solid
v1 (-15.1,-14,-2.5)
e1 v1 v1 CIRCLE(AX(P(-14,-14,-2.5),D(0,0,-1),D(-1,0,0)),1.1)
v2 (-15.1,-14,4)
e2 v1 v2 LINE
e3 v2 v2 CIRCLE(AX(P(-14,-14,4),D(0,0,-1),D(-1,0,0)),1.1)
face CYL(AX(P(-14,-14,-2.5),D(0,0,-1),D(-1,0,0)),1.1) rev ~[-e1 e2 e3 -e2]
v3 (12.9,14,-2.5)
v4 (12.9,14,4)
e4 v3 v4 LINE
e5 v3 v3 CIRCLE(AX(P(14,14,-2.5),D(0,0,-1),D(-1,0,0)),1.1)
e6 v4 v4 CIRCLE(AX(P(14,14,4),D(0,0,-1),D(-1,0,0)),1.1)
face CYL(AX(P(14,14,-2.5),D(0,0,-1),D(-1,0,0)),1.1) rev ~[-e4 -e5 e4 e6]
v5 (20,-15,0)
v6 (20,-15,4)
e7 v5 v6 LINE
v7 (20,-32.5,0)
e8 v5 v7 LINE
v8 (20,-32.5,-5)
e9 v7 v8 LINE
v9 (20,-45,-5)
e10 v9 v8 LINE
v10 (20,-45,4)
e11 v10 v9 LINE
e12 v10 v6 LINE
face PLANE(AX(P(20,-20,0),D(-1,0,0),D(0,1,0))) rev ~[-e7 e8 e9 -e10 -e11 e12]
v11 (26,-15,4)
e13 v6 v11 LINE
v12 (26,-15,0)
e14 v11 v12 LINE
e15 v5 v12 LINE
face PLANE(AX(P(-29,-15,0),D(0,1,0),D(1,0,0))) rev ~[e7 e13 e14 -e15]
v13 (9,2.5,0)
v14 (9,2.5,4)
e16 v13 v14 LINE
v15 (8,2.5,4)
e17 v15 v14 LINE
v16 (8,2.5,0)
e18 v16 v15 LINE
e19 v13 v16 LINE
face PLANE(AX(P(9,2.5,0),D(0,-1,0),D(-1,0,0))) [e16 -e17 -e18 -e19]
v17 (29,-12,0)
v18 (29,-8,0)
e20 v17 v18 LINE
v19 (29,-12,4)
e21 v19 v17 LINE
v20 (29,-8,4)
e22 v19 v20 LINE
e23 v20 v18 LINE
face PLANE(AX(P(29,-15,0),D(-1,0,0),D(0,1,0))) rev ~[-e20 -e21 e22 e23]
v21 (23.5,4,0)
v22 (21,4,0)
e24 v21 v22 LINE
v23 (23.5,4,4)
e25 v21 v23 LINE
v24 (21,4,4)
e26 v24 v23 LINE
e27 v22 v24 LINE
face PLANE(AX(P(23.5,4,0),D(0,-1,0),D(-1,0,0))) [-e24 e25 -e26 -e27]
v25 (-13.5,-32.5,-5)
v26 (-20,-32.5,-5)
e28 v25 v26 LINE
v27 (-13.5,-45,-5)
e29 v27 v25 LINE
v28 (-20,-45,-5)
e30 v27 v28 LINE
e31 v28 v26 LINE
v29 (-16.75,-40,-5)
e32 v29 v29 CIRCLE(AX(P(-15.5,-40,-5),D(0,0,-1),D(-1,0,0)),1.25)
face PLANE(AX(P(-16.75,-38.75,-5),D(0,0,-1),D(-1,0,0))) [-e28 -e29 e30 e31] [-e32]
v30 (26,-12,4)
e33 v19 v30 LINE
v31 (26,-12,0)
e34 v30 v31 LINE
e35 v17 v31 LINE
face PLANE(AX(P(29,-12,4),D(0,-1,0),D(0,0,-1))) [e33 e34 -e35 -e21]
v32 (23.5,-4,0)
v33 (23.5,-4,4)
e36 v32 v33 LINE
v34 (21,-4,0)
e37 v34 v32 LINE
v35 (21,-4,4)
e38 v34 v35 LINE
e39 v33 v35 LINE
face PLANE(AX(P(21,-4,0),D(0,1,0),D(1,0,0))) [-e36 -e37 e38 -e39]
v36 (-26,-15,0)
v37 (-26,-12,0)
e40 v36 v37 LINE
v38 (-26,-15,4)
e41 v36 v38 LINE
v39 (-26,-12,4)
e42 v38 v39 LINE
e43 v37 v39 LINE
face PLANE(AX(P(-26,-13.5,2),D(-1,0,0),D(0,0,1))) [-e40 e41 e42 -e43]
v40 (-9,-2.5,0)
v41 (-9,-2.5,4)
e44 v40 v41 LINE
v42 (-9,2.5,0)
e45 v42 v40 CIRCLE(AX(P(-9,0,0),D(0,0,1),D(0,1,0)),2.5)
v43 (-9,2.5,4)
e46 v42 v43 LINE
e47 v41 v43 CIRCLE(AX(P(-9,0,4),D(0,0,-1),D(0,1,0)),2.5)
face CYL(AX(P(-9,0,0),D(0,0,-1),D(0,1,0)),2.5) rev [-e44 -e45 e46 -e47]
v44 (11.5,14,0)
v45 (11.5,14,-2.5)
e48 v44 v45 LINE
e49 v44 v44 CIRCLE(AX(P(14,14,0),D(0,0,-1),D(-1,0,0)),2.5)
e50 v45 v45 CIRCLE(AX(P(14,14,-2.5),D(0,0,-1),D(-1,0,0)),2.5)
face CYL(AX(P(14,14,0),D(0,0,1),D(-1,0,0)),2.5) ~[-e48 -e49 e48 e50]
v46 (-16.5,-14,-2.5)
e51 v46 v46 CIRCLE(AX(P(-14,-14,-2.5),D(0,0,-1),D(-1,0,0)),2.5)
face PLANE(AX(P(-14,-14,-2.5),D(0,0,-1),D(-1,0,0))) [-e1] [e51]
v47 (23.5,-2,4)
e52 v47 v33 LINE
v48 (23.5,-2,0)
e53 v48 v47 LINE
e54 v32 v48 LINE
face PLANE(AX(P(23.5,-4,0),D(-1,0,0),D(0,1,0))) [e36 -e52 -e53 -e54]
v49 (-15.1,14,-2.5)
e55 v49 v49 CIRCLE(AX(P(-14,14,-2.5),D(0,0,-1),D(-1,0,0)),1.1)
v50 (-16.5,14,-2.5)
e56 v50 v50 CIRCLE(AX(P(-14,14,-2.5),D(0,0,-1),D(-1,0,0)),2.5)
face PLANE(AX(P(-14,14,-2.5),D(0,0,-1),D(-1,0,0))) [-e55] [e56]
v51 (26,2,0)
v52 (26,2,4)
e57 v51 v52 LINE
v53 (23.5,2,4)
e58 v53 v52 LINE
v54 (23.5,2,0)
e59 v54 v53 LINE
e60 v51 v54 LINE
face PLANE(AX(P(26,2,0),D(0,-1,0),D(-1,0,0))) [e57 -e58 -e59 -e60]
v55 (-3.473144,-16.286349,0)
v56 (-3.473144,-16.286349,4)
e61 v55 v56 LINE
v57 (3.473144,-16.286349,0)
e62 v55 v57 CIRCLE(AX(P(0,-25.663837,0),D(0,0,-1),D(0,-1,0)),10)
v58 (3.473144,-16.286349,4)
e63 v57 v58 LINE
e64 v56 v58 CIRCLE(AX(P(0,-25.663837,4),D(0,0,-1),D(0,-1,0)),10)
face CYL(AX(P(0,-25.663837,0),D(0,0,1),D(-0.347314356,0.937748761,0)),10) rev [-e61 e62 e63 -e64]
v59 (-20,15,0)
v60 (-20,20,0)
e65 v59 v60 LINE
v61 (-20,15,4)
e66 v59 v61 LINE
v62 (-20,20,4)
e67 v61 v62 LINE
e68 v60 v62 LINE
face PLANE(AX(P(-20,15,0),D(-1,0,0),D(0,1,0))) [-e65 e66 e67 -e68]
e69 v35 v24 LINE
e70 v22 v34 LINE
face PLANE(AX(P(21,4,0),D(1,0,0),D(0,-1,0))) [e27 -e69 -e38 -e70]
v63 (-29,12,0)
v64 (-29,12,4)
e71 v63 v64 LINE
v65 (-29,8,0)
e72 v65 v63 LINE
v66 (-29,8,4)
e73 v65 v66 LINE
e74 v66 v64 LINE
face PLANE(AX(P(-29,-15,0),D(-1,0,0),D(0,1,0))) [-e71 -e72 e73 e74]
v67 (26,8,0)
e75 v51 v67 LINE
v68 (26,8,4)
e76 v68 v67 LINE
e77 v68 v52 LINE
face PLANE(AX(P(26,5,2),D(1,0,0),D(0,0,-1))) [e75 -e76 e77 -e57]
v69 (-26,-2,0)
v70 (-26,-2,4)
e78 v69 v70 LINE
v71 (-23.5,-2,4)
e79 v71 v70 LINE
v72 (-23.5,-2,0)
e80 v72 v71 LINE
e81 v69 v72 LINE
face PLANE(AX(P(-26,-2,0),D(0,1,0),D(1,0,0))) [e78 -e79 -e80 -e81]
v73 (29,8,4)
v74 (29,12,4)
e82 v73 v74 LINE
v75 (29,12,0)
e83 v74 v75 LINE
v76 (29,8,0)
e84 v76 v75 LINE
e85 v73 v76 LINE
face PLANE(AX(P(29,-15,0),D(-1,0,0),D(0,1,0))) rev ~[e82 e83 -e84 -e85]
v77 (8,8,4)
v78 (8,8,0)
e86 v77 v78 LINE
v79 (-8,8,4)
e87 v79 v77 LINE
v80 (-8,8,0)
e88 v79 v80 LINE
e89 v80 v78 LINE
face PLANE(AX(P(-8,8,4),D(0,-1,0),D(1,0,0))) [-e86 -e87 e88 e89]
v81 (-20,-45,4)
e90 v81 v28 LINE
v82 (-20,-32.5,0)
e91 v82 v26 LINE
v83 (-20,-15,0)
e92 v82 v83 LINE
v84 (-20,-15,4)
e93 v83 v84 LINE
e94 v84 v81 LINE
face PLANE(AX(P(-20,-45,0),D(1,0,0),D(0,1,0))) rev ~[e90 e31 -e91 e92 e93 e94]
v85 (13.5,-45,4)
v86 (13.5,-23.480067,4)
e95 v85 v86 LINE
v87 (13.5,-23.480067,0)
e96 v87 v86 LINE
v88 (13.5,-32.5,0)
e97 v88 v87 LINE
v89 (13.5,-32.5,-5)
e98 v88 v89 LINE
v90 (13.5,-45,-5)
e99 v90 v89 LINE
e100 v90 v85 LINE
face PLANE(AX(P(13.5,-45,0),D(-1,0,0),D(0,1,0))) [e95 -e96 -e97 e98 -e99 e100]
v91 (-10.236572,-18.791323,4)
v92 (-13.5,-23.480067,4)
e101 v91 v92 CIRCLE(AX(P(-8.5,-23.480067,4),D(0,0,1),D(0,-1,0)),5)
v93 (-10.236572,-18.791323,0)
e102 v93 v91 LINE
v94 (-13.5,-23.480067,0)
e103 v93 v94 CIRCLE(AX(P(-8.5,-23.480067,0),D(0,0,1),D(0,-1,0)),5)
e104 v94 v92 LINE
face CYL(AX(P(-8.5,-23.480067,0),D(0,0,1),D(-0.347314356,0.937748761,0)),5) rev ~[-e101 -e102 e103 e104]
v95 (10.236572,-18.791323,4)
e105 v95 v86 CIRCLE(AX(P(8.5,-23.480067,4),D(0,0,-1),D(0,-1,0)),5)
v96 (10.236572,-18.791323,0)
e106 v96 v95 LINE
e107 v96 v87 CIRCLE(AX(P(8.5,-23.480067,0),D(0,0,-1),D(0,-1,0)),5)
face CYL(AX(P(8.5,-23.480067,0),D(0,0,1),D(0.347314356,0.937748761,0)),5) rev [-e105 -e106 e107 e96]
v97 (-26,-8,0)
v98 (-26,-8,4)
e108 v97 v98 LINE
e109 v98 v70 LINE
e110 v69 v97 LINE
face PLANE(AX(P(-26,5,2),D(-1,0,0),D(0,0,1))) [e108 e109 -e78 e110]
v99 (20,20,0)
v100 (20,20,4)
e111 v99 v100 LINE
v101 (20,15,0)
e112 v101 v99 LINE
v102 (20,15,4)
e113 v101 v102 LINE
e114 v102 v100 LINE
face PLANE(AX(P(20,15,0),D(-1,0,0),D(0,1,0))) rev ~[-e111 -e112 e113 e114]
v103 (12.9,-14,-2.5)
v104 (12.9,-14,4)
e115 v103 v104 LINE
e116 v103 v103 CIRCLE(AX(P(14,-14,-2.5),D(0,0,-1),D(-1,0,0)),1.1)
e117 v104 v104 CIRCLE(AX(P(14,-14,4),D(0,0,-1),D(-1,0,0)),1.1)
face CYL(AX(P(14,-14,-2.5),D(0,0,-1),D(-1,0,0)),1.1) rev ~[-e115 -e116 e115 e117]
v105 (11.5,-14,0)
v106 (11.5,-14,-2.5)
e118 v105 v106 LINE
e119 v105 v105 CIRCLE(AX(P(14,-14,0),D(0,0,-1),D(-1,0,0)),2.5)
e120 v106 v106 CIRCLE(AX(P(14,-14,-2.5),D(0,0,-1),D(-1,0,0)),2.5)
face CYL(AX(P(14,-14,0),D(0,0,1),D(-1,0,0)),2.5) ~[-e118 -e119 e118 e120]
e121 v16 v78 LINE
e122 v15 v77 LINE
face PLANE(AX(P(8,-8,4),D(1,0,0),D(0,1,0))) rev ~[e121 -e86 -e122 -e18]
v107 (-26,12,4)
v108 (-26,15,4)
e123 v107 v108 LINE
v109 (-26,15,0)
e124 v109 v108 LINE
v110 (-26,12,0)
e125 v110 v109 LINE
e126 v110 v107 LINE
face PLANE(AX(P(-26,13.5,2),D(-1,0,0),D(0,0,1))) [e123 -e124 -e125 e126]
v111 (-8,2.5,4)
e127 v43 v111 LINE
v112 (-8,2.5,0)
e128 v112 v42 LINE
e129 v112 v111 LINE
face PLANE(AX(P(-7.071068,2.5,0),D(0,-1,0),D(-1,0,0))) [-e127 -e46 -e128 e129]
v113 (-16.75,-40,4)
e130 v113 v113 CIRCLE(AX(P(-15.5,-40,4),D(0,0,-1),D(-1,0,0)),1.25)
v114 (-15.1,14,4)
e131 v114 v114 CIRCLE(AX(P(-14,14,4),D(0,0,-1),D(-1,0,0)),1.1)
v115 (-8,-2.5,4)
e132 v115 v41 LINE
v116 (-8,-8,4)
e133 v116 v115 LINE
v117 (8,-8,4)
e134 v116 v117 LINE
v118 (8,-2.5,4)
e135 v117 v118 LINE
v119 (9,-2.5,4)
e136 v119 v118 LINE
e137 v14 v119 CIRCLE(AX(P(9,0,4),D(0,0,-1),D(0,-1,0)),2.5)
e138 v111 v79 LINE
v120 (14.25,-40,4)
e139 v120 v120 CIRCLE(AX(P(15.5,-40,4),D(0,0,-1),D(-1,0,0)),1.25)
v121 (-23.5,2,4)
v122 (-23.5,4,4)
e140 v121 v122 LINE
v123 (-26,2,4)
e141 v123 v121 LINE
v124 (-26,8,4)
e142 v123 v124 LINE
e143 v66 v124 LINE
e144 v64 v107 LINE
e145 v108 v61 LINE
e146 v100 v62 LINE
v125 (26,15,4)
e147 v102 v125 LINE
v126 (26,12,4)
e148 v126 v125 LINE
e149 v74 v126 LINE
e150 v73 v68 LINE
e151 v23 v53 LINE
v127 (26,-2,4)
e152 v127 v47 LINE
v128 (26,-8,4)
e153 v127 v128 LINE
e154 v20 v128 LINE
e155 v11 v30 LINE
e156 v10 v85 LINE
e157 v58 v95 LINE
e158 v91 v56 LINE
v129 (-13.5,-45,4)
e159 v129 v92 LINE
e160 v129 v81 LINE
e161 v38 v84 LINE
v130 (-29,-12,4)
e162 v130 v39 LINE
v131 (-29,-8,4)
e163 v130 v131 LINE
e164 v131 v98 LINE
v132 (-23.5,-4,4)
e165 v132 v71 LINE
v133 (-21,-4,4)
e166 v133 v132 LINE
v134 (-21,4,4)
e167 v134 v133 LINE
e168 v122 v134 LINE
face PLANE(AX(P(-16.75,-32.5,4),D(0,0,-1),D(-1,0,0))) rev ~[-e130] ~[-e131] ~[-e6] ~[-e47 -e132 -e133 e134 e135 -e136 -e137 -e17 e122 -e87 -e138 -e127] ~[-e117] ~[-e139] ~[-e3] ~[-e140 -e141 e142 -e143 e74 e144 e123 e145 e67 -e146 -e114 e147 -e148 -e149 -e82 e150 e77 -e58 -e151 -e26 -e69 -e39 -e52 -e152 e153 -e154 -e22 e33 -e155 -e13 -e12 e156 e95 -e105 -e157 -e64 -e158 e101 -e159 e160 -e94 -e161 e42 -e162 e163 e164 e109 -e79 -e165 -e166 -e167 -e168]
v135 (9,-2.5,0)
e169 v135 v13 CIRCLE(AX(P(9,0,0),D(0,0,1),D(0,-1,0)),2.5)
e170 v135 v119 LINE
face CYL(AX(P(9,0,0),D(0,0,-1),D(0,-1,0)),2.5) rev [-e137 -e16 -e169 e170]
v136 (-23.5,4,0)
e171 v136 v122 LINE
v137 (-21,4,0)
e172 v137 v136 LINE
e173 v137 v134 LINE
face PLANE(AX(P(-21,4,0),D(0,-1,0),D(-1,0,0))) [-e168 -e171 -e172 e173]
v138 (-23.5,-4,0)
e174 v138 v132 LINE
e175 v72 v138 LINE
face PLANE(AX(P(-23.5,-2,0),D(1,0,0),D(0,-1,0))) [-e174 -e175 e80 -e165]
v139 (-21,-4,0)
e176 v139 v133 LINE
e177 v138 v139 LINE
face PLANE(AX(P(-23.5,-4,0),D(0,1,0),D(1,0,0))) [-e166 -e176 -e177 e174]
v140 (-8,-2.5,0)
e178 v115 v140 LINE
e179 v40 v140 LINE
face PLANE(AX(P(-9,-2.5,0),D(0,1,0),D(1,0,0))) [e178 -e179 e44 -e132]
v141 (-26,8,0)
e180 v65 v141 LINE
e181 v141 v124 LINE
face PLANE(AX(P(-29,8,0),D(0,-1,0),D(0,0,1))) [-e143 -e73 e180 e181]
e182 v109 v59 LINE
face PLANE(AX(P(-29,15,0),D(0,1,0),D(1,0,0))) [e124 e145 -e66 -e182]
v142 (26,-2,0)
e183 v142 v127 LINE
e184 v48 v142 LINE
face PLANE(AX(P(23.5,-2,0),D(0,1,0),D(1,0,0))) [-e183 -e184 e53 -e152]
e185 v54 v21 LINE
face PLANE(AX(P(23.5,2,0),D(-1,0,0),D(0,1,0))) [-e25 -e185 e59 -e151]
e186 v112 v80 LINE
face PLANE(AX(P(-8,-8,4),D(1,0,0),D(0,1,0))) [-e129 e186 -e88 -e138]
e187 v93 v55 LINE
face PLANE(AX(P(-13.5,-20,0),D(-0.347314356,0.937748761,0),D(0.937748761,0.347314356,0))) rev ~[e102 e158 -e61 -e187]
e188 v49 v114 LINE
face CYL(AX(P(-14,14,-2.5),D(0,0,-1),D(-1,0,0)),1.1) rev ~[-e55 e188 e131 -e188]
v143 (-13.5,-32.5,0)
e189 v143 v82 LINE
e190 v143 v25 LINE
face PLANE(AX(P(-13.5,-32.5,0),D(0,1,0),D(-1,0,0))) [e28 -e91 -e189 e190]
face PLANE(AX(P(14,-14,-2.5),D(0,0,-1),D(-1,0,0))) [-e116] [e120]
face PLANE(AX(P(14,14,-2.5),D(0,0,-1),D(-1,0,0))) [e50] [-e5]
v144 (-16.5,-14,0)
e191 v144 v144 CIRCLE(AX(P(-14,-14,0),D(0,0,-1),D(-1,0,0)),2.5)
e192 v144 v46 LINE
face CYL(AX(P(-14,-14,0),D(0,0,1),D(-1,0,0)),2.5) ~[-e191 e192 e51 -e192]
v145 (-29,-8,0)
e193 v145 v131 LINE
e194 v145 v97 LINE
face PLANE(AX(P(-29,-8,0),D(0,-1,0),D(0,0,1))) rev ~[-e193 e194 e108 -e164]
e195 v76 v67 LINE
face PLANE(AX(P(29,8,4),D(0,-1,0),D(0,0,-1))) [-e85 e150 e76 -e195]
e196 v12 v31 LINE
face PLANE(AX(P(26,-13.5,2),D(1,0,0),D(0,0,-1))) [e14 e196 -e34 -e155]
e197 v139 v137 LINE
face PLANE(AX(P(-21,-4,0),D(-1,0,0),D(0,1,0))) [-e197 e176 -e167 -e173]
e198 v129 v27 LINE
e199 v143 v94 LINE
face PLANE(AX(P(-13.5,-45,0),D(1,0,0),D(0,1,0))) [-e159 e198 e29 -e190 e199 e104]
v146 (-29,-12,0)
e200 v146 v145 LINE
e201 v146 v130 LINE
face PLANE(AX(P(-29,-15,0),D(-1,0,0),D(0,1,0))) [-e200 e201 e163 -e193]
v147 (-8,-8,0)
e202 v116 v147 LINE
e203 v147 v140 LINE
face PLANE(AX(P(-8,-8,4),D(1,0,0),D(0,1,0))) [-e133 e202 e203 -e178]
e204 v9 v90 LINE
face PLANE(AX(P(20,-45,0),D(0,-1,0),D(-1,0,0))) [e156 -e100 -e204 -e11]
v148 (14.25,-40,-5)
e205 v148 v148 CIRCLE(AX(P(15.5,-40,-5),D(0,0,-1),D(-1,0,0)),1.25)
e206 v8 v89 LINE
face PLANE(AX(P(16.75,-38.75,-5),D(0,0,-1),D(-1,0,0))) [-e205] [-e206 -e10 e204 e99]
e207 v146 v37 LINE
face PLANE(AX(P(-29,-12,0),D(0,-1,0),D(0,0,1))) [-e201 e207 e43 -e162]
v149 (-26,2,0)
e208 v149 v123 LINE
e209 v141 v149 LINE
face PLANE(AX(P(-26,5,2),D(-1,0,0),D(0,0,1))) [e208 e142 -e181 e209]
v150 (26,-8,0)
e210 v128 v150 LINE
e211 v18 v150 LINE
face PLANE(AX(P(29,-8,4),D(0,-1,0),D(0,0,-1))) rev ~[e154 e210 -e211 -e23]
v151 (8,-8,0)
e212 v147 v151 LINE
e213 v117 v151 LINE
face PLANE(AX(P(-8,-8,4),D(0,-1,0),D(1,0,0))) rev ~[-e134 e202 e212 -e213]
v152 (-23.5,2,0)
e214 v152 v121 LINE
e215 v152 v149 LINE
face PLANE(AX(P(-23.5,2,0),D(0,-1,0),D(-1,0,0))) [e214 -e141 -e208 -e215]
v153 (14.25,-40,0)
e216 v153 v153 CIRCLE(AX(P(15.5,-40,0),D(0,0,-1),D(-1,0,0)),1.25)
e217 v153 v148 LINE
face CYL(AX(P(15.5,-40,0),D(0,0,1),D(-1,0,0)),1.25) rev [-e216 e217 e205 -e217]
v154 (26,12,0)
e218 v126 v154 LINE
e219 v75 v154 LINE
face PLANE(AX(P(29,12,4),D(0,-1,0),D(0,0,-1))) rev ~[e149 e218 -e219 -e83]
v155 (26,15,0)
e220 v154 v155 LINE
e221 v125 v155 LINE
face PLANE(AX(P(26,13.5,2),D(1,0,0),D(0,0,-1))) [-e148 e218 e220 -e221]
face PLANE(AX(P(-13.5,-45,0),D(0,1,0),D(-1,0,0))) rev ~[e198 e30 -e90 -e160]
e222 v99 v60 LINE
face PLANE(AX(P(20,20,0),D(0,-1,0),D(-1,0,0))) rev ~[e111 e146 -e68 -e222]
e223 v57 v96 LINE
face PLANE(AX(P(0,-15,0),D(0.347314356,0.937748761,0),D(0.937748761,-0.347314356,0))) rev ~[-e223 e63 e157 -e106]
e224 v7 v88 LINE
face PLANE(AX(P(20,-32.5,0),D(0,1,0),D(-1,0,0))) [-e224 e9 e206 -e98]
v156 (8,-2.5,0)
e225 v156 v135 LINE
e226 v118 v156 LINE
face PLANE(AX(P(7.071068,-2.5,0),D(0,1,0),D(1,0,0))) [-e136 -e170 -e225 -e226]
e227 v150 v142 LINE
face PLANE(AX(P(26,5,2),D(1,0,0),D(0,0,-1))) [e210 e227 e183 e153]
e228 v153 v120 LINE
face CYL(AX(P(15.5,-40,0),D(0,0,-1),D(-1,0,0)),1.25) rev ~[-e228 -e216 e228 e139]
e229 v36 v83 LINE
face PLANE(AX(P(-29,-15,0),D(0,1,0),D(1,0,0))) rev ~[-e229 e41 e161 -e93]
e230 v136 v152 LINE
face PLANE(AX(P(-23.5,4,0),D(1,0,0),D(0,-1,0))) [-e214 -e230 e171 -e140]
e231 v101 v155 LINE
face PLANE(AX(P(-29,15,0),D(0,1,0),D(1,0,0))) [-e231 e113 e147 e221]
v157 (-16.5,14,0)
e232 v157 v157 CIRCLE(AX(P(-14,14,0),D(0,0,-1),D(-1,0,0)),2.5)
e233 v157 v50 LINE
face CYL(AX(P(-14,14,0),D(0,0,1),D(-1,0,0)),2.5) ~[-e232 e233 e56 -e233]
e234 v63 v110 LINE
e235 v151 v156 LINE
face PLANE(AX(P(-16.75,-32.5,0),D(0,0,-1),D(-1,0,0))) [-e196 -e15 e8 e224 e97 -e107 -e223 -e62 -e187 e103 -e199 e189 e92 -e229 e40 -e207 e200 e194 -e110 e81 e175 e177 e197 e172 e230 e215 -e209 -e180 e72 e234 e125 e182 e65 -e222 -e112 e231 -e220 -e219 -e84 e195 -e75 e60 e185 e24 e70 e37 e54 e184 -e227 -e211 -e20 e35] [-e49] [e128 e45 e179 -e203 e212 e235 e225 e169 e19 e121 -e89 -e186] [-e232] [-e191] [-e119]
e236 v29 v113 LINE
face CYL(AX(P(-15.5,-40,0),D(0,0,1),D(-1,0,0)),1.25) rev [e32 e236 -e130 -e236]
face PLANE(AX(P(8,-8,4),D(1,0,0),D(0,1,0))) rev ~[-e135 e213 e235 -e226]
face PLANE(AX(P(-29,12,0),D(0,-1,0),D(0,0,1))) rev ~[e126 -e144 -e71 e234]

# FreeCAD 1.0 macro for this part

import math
import FreeCAD as App
import Part
import Sketcher
Q = App.Units.Quantity


def edges_at(feature, points):
    """Names of the edges that pass closest to the given points."""
    edges = feature.Shape.Edges
    near = lambda p: min(range(len(edges)), key=lambda i: edges[i].distToShape(Part.Vertex(*p))[0])
    return sorted({f"Edge{near(p) + 1}" for p in points})


def add_polygon(sketch, points):
    """Adds a closed chain of lines whose ends are joined by coincident constraints."""
    first, n = sketch.GeometryCount, len(points)
    for a, b in zip(points, points[1:] + points[:1]):
        sketch.addGeometry(Part.LineSegment(App.Vector(*a, 0), App.Vector(*b, 0)), False)
    for i in range(n):
        sketch.addConstraint(Sketcher.Constraint("Coincident", first + i, 2, first + (i + 1) % n, 1))

doc = App.newDocument("Part")
params = doc.addObject("Spreadsheet::Sheet", "Params")
for row, (alias, value) in enumerate([
    ("sketch1_width", "58 mm"),
    ("sketch1_height", "30 mm"),
    ("pad1_length", "4 mm"),
    ("sketch2_width", "3 mm"),
    ("sketch2_width2", "16 mm"),
    ("sketch2_height", "4 mm"),
    ("pocket1_length", "3 mm"),
    ("sketch3_width", "3 mm"),
    ("sketch3_width2", "16 mm"),
    ("sketch3_height", "4 mm"),
    ("pocket2_length", "3 mm"),
    ("sketch4_height", "4 mm"),
    ("sketch4_height2", "2 mm"),
    ("sketch4_width", "2.5 mm"),
    ("sketch5_radius", "2.5 mm"),
    ("sketch5_radius2", "7.5 mm"),
    ("sketch6_width", "16 mm"),
    ("pocket5_length", "10 mm"),
    ("sketch7_width", "40 mm"),
    ("sketch7_height", "5 mm"),
    ("pad2_length", "4 mm"),
    ("sketch8_diameter", "5 mm"),
    ("pad3_length", "2.5 mm"),
    ("sketch9_diameter", "2.2 mm"),
    ("sketch10_diameter", "2.5 mm"),
    ("sketch10_height", "25 mm"),
    ("sketch10_width", "6.5 mm"),
    ("pad4_length", "4 mm"),
    ("sketch11_diameter", "2.5 mm"),
    ("sketch11_width", "6.5 mm"),
    ("sketch11_height", "12.5 mm"),
    ("pad5_length", "5 mm"),
    ("sketch12_width", "27 mm"),
    ("fillet_radius", "10 mm"),
    ("fillet2_radius", "5 mm"),
], start=1):
    params.set(f"A{row}", alias)
    params.set(f"B{row}", "=" + value)
    params.setAlias(f"B{row}", alias)

body = doc.addObject("PartDesign::Body", "Body")

# Sketch on XY plane
sketch1 = doc.addObject("Sketcher::SketchObject", "Sketch")
body.addObject(sketch1)
sketch1.AttachmentSupport = (doc.XY_Plane, [""])
sketch1.MapMode = "FlatFace"
add_polygon(sketch1, [(-29, 15), (-29, -15), (29, -15), (29, 15)])  # lines 0-3
sketch1.addConstraint([
    Sketcher.Constraint("Vertical", 0),
    Sketcher.Constraint("Horizontal", 1),
    Sketcher.Constraint("Vertical", 2),
    Sketcher.Constraint("Horizontal", 3),
    Sketcher.Constraint("Symmetric", 0, 2, 2, 2, -1, 1),
    Sketcher.Constraint("DistanceX", 1, 1, 1, 2, Q("58 mm")),
    Sketcher.Constraint("DistanceY", 0, 2, 0, 1, Q("30 mm")),
])
sketch1.setExpression("Constraints[9]", "Params.sketch1_width")
sketch1.setExpression("Constraints[10]", "Params.sketch1_height")
pad1 = doc.addObject("PartDesign::Pad", "Pad")
body.addObject(pad1)
pad1.Profile = sketch1
pad1.setExpression("Length", "Params.pad1_length")

# Sketch on YZ plane
sketch2 = doc.addObject("Sketcher::SketchObject", "Sketch001")
body.addObject(sketch2)
sketch2.AttachmentSupport = (doc.YZ_Plane, [""])
sketch2.MapMode = "FlatFace"
sketch2.AttachmentOffset = App.Placement(App.Vector(0, 0, 29), App.Rotation())
add_polygon(sketch2, [(15, 4), (12, 4), (12, 0), (15, 0)])  # lines 0-3
add_polygon(sketch2, [(8, 4), (-8, 4), (-8, 0), (8, 0)])  # lines 4-7
add_polygon(sketch2, [(-12, 4), (-15, 4), (-15, 0), (-12, 0)])  # lines 8-11
sketch2.addConstraint([
    Sketcher.Constraint("Horizontal", 0),
    Sketcher.Constraint("Vertical", 1),
    Sketcher.Constraint("Horizontal", 2),
    Sketcher.Constraint("Vertical", 3),
    Sketcher.Constraint("Horizontal", 4),
    Sketcher.Constraint("Vertical", 5),
    Sketcher.Constraint("Horizontal", 6),
    Sketcher.Constraint("Vertical", 7),
    Sketcher.Constraint("Horizontal", 8),
    Sketcher.Constraint("Vertical", 9),
    Sketcher.Constraint("Horizontal", 10),
    Sketcher.Constraint("Vertical", 11),
    Sketcher.Constraint("Symmetric", 5, 2, 6, 2, -1, 1),
    Sketcher.Constraint("Symmetric", 2, 2, 9, 2, -1, 1),
    Sketcher.Constraint("Symmetric", 1, 2, 10, 2, -2),
    Sketcher.Constraint("Horizontal", 3, 2, 4, 2),
    Sketcher.Constraint("Horizontal", 7, 2, 8, 2),
    Sketcher.Constraint("DistanceX", 0, 2, 0, 1, Q("3 mm")),
    Sketcher.Constraint("DistanceX", 4, 2, 4, 1, Q("16 mm")),
    Sketcher.Constraint("DistanceY", 1, 2, 1, 1, Q("4 mm")),
    Sketcher.Constraint("DistanceX", -1, 1, 0, 2, Q("12 mm")),
])
sketch2.setExpression("Constraints[29]", "Params.sketch2_width")
sketch2.setExpression("Constraints[30]", "Params.sketch2_width2")
sketch2.setExpression("Constraints[31]", "Params.sketch2_height")
pocket1 = doc.addObject("PartDesign::Pocket", "Pocket")
body.addObject(pocket1)
pocket1.Profile = sketch2
pocket1.setExpression("Length", "Params.pocket1_length")

# Sketch on YZ plane
sketch3 = doc.addObject("Sketcher::SketchObject", "Sketch002")
body.addObject(sketch3)
sketch3.AttachmentSupport = (doc.YZ_Plane, [""])
sketch3.MapMode = "FlatFace"
sketch3.AttachmentOffset = App.Placement(App.Vector(0, 0, -29), App.Rotation())
add_polygon(sketch3, [(15, 0), (12, 0), (12, 4), (15, 4)])  # lines 0-3
add_polygon(sketch3, [(8, 0), (-8, 0), (-8, 4), (8, 4)])  # lines 4-7
add_polygon(sketch3, [(-12, 0), (-15, 0), (-15, 4), (-12, 4)])  # lines 8-11
sketch3.addConstraint([
    Sketcher.Constraint("Horizontal", 0),
    Sketcher.Constraint("Vertical", 1),
    Sketcher.Constraint("Horizontal", 2),
    Sketcher.Constraint("Vertical", 3),
    Sketcher.Constraint("Horizontal", 4),
    Sketcher.Constraint("Vertical", 5),
    Sketcher.Constraint("Horizontal", 6),
    Sketcher.Constraint("Vertical", 7),
    Sketcher.Constraint("Horizontal", 8),
    Sketcher.Constraint("Vertical", 9),
    Sketcher.Constraint("Horizontal", 10),
    Sketcher.Constraint("Vertical", 11),
    Sketcher.Constraint("Symmetric", 4, 2, 7, 2, -1, 1),
    Sketcher.Constraint("Symmetric", 3, 2, 8, 2, -1, 1),
    Sketcher.Constraint("Symmetric", 1, 2, 10, 2, -2),
    Sketcher.Constraint("PointOnObject", 0, 2, -1),
    Sketcher.Constraint("Horizontal", 2, 2, 5, 2),
    Sketcher.Constraint("DistanceX", 0, 2, 0, 1, Q("3 mm")),
    Sketcher.Constraint("DistanceX", 4, 2, 4, 1, Q("16 mm")),
    Sketcher.Constraint("DistanceY", 1, 1, 1, 2, Q("4 mm")),
    Sketcher.Constraint("DistanceX", -1, 1, 0, 2, Q("12 mm")),
])
sketch3.setExpression("Constraints[29]", "Params.sketch3_width")
sketch3.setExpression("Constraints[30]", "Params.sketch3_width2")
sketch3.setExpression("Constraints[31]", "Params.sketch3_height")
pocket2 = doc.addObject("PartDesign::Pocket", "Pocket001")
body.addObject(pocket2)
pocket2.Profile = sketch3
pocket2.setExpression("Length", "Params.pocket2_length")
pocket2.Reversed = True

# Sketch on XY plane
sketch4 = doc.addObject("Sketcher::SketchObject", "Sketch003")
body.addObject(sketch4)
sketch4.AttachmentSupport = (doc.XY_Plane, [""])
sketch4.MapMode = "FlatFace"
add_polygon(sketch4, [(23.5, 2), (26, 2), (26, -2), (23.5, -2), (23.5, -4), (21, -4), (21, 4), (23.5, 4)])  # lines 0-7
add_polygon(sketch4, [(-23.5, -2), (-26, -2), (-26, 2), (-23.5, 2), (-23.5, 4), (-21, 4), (-21, -4), (-23.5, -4)])  # lines 8-15
sketch4.addConstraint([
    Sketcher.Constraint("Horizontal", 0),
    Sketcher.Constraint("Vertical", 1),
    Sketcher.Constraint("Horizontal", 2),
    Sketcher.Constraint("Vertical", 3),
    Sketcher.Constraint("Horizontal", 4),
    Sketcher.Constraint("Vertical", 5),
    Sketcher.Constraint("Horizontal", 6),
    Sketcher.Constraint("Vertical", 7),
    Sketcher.Constraint("Horizontal", 8),
    Sketcher.Constraint("Vertical", 9),
    Sketcher.Constraint("Horizontal", 10),
    Sketcher.Constraint("Vertical", 11),
    Sketcher.Constraint("Horizontal", 12),
    Sketcher.Constraint("Vertical", 13),
    Sketcher.Constraint("Horizontal", 14),
    Sketcher.Constraint("Vertical", 15),
    Sketcher.Constraint("Symmetric", 0, 2, 8, 2, -1, 1),
    Sketcher.Constraint("Symmetric", 2, 2, 10, 2, -1, 1),
    Sketcher.Constraint("Symmetric", 4, 2, 12, 2, -1, 1),
    Sketcher.Constraint("Symmetric", 6, 2, 14, 2, -1, 1),
    Sketcher.Constraint("Symmetric", 7, 2, 10, 2, -2),
    Sketcher.Constraint("Horizontal", 6, 2, 11, 2),
    Sketcher.Constraint("Equal", 2, 4),
    Sketcher.Constraint("DistanceY", 1, 2, 1, 1, Q("4 mm")),
    Sketcher.Constraint("DistanceY", 3, 2, 3, 1, Q("2 mm")),
    Sketcher.Constraint("DistanceX", 0, 1, 0, 2, Q("2.5 mm")),
    Sketcher.Constraint("DistanceX", -1, 1, 0, 2, Q("26 mm")),
])
sketch4.setExpression("Constraints[39]", "Params.sketch4_height")
sketch4.setExpression("Constraints[40]", "Params.sketch4_height2")
sketch4.setExpression("Constraints[41]", "Params.sketch4_width")
pocket3 = doc.addObject("PartDesign::Pocket", "Pocket002")
body.addObject(pocket3)
pocket3.Profile = sketch4
pocket3.Type = "ThroughAll"
pocket3.Reversed = True

# Sketch on XY plane
sketch5 = doc.addObject("Sketcher::SketchObject", "Sketch004")
body.addObject(sketch5)
sketch5.AttachmentSupport = (doc.XY_Plane, [""])
sketch5.MapMode = "FlatFace"
sketch5.addGeometry([
    Part.ArcOfCircle(Part.Circle(App.Vector(-9, 0, 0), App.Vector(0, 0, 1), 2.5), math.radians(90), math.radians(270)),  # 0
    Part.LineSegment(App.Vector(-9, 2.5, 0), App.Vector(-7.1, 2.5, 0)),  # 1
    Part.ArcOfCircle(Part.Circle(App.Vector(0, 0, 0), App.Vector(0, 0, 1), 7.5), math.radians(19), math.radians(161)),  # 2
    Part.LineSegment(App.Vector(7.1, 2.5, 0), App.Vector(9, 2.5, 0)),  # 3
    Part.ArcOfCircle(Part.Circle(App.Vector(9, 0, 0), App.Vector(0, 0, 1), 2.5), math.radians(-90), math.radians(90)),  # 4
    Part.LineSegment(App.Vector(9, -2.5, 0), App.Vector(7.1, -2.5, 0)),  # 5
    Part.ArcOfCircle(Part.Circle(App.Vector(0, 0, 0), App.Vector(0, 0, 1), 7.5), math.radians(-161), math.radians(-19)),  # 6
    Part.LineSegment(App.Vector(-7.1, -2.5, 0), App.Vector(-9, -2.5, 0)),  # 7
], False)
sketch5.addConstraint([
    Sketcher.Constraint("Tangent", 0, 1, 1, 1),
    Sketcher.Constraint("Coincident", 1, 2, 2, 2),
    Sketcher.Constraint("Coincident", 2, 1, 3, 1),
    Sketcher.Constraint("Tangent", 3, 2, 4, 2),
    Sketcher.Constraint("Tangent", 4, 1, 5, 1),
    Sketcher.Constraint("Coincident", 5, 2, 6, 2),
    Sketcher.Constraint("Coincident", 6, 1, 7, 1),
    Sketcher.Constraint("Tangent", 7, 2, 0, 2),
    Sketcher.Constraint("Horizontal", 1),
    Sketcher.Constraint("Horizontal", 3),
    Sketcher.Constraint("Horizontal", 5),
    Sketcher.Constraint("Horizontal", 7),
    Sketcher.Constraint("Coincident", 2, 3, -1, 1),
    Sketcher.Constraint("Coincident", 6, 3, -1, 1),
    Sketcher.Constraint("Equal", 0, 4),
    Sketcher.Constraint("Equal", 2, 6),
    Sketcher.Constraint("Symmetric", 0, 3, 4, 3, -1, 1),
    Sketcher.Constraint("PointOnObject", 0, 3, -1),
    Sketcher.Constraint("Radius", 0, Q("2.5 mm")),
    Sketcher.Constraint("Radius", 2, Q("7.5 mm")),
    Sketcher.Constraint("DistanceX", 0, 3, -1, 1, Q("9 mm")),
])
sketch5.setExpression("Constraints[18]", "Params.sketch5_radius")
sketch5.setExpression("Constraints[19]", "Params.sketch5_radius2")
pocket4 = doc.addObject("PartDesign::Pocket", "Pocket003")
body.addObject(pocket4)
pocket4.Profile = sketch5
pocket4.Type = "ThroughAll"
pocket4.Reversed = True

# Sketch on XY plane
sketch6 = doc.addObject("Sketcher::SketchObject", "Sketch005")
body.addObject(sketch6)
sketch6.AttachmentSupport = (doc.XY_Plane, [""])
sketch6.MapMode = "FlatFace"
sketch6.AttachmentOffset = App.Placement(App.Vector(0, 0, 4), App.Rotation())
add_polygon(sketch6, [(-8, 8), (-8, -8), (8, -8), (8, 8)])  # lines 0-3
sketch6.addConstraint([
    Sketcher.Constraint("Vertical", 0),
    Sketcher.Constraint("Horizontal", 1),
    Sketcher.Constraint("Vertical", 2),
    Sketcher.Constraint("Horizontal", 3),
    Sketcher.Constraint("Symmetric", 0, 2, 2, 2, -1, 1),
    Sketcher.Constraint("Equal", 3, 0),
    Sketcher.Constraint("DistanceX", 1, 1, 1, 2, Q("16 mm")),
])
sketch6.setExpression("Constraints[10]", "Params.sketch6_width")
pocket5 = doc.addObject("PartDesign::Pocket", "Pocket004")
body.addObject(pocket5)
pocket5.Profile = sketch6
pocket5.setExpression("Length", "Params.pocket5_length")

# Sketch on XY plane
sketch7 = doc.addObject("Sketcher::SketchObject", "Sketch006")
body.addObject(sketch7)
sketch7.AttachmentSupport = (doc.XY_Plane, [""])
sketch7.MapMode = "FlatFace"
add_polygon(sketch7, [(20, 20), (20, 15), (-20, 15), (-20, 20)])  # lines 0-3
add_polygon(sketch7, [(20, -15), (20, -20), (-20, -20), (-20, -15)])  # lines 4-7
sketch7.addConstraint([
    Sketcher.Constraint("Vertical", 0),
    Sketcher.Constraint("Horizontal", 1),
    Sketcher.Constraint("Vertical", 2),
    Sketcher.Constraint("Horizontal", 3),
    Sketcher.Constraint("Vertical", 4),
    Sketcher.Constraint("Horizontal", 5),
    Sketcher.Constraint("Vertical", 6),
    Sketcher.Constraint("Horizontal", 7),
    Sketcher.Constraint("Symmetric", 2, 2, 4, 2, -1, 1),
    Sketcher.Constraint("Symmetric", 0, 2, 6, 2, -1, 1),
    Sketcher.Constraint("Vertical", 3, 2, 4, 2),
    Sketcher.Constraint("DistanceX", 1, 2, 1, 1, Q("40 mm")),
    Sketcher.Constraint("DistanceY", 0, 2, 0, 1, Q("5 mm")),
    Sketcher.Constraint("DistanceY", -1, 1, 0, 2, Q("15 mm")),
])
sketch7.setExpression("Constraints[19]", "Params.sketch7_width")
sketch7.setExpression("Constraints[20]", "Params.sketch7_height")
pad2 = doc.addObject("PartDesign::Pad", "Pad001")
body.addObject(pad2)
pad2.Profile = sketch7
pad2.setExpression("Length", "Params.pad2_length")

# Sketch on XY plane
sketch8 = doc.addObject("Sketcher::SketchObject", "Sketch007")
body.addObject(sketch8)
sketch8.AttachmentSupport = (doc.XY_Plane, [""])
sketch8.MapMode = "FlatFace"
sketch8.addGeometry([
    Part.Circle(App.Vector(-14, -14, 0), App.Vector(0, 0, 1), 2.5),
    Part.Circle(App.Vector(14, -14, 0), App.Vector(0, 0, 1), 2.5),
    Part.Circle(App.Vector(-14, 14, 0), App.Vector(0, 0, 1), 2.5),
    Part.Circle(App.Vector(14, 14, 0), App.Vector(0, 0, 1), 2.5),
], False)
sketch8.addConstraint([
    Sketcher.Constraint("Equal", 0, 1),
    Sketcher.Constraint("Equal", 1, 2),
    Sketcher.Constraint("Equal", 2, 3),
    Sketcher.Constraint("Symmetric", 1, 3, 2, 3, -1, 1),
    Sketcher.Constraint("Symmetric", 0, 3, 3, 3, -1, 1),
    Sketcher.Constraint("Symmetric", 0, 3, 1, 3, -2),
    Sketcher.Constraint("Diameter", 0, Q("5 mm")),
    Sketcher.Constraint("DistanceX", 0, 3, -1, 1, Q("14 mm")),
    Sketcher.Constraint("DistanceY", 0, 3, -1, 1, Q("14 mm")),
])
sketch8.setExpression("Constraints[6]", "Params.sketch8_diameter")
pad3 = doc.addObject("PartDesign::Pad", "Pad002")
body.addObject(pad3)
pad3.Profile = sketch8
pad3.setExpression("Length", "Params.pad3_length")
pad3.Reversed = True

# Sketch on XY plane
sketch9 = doc.addObject("Sketcher::SketchObject", "Sketch008")
body.addObject(sketch9)
sketch9.AttachmentSupport = (doc.XY_Plane, [""])
sketch9.MapMode = "FlatFace"
sketch9.AttachmentOffset = App.Placement(App.Vector(0, 0, -2.5), App.Rotation())
sketch9.addGeometry([
    Part.Circle(App.Vector(-14, -14, 0), App.Vector(0, 0, 1), 1.1),
    Part.Circle(App.Vector(14, -14, 0), App.Vector(0, 0, 1), 1.1),
    Part.Circle(App.Vector(14, 14, 0), App.Vector(0, 0, 1), 1.1),
    Part.Circle(App.Vector(-14, 14, 0), App.Vector(0, 0, 1), 1.1),
], False)
sketch9.addConstraint([
    Sketcher.Constraint("Equal", 0, 1),
    Sketcher.Constraint("Equal", 1, 2),
    Sketcher.Constraint("Equal", 2, 3),
    Sketcher.Constraint("Symmetric", 0, 3, 2, 3, -1, 1),
    Sketcher.Constraint("Symmetric", 1, 3, 3, 3, -1, 1),
    Sketcher.Constraint("Symmetric", 0, 3, 1, 3, -2),
    Sketcher.Constraint("Diameter", 0, Q("2.2 mm")),
    Sketcher.Constraint("DistanceX", 0, 3, -1, 1, Q("14 mm")),
    Sketcher.Constraint("DistanceY", 0, 3, -1, 1, Q("14 mm")),
])
sketch9.setExpression("Constraints[6]", "Params.sketch9_diameter")
pocket6 = doc.addObject("PartDesign::Pocket", "Pocket005")
body.addObject(pocket6)
pocket6.Profile = sketch9
pocket6.Type = "ThroughAll"
pocket6.Reversed = True

# Sketch on XY plane
sketch10 = doc.addObject("Sketcher::SketchObject", "Sketch009")
body.addObject(sketch10)
sketch10.AttachmentSupport = (doc.XY_Plane, [""])
sketch10.MapMode = "FlatFace"
add_polygon(sketch10, [(-13.5, -20), (-13.5, -45), (-20, -45), (-20, -20)])  # lines 0-3
sketch10.addGeometry(Part.Circle(App.Vector(-15.5, -40, 0), App.Vector(0, 0, 1), 1.2), False)  # 4
add_polygon(sketch10, [(20, -20), (20, -45), (13.5, -45), (13.5, -20)])  # lines 5-8
sketch10.addGeometry(Part.Circle(App.Vector(15.5, -40, 0), App.Vector(0, 0, 1), 1.2), False)  # 9
sketch10.addConstraint([
    Sketcher.Constraint("Vertical", 0),
    Sketcher.Constraint("Horizontal", 1),
    Sketcher.Constraint("Vertical", 2),
    Sketcher.Constraint("Horizontal", 3),
    Sketcher.Constraint("Vertical", 5),
    Sketcher.Constraint("Horizontal", 6),
    Sketcher.Constraint("Vertical", 7),
    Sketcher.Constraint("Horizontal", 8),
    Sketcher.Constraint("Equal", 4, 9),
    Sketcher.Constraint("Symmetric", 4, 3, 9, 3, -2),
    Sketcher.Constraint("Symmetric", 1, 2, 5, 2, -2),
    Sketcher.Constraint("Symmetric", 3, 2, 7, 2, -2),
    Sketcher.Constraint("Diameter", 4, Q("2.5 mm")),
    Sketcher.Constraint("DistanceY", 0, 2, 0, 1, Q("25 mm")),
    Sketcher.Constraint("DistanceX", 1, 2, 1, 1, Q("6.5 mm")),
    Sketcher.Constraint("DistanceY", 4, 3, -1, 1, Q("40 mm")),
    Sketcher.Constraint("DistanceY", 0, 2, -1, 1, Q("45 mm")),
    Sketcher.Constraint("DistanceX", 1, 2, -1, 1, Q("20 mm")),
    Sketcher.Constraint("DistanceX", 4, 3, 9, 3, Q("31 mm")),
])
sketch10.setExpression("Constraints[20]", "Params.sketch10_diameter")
sketch10.setExpression("Constraints[21]", "Params.sketch10_height")
sketch10.setExpression("Constraints[22]", "Params.sketch10_width")
pad4 = doc.addObject("PartDesign::Pad", "Pad003")
body.addObject(pad4)
pad4.Profile = sketch10
pad4.setExpression("Length", "Params.pad4_length")

# Sketch on XY plane
sketch11 = doc.addObject("Sketcher::SketchObject", "Sketch010")
body.addObject(sketch11)
sketch11.AttachmentSupport = (doc.XY_Plane, [""])
sketch11.MapMode = "FlatFace"
add_polygon(sketch11, [(-13.5, -32.5), (-13.5, -45), (-20, -45), (-20, -32.5)])  # lines 0-3
sketch11.addGeometry(Part.Circle(App.Vector(-15.5, -40, 0), App.Vector(0, 0, 1), 1.2), False)  # 4
add_polygon(sketch11, [(20, -32.5), (20, -45), (13.5, -45), (13.5, -32.5)])  # lines 5-8
sketch11.addGeometry(Part.Circle(App.Vector(15.5, -40, 0), App.Vector(0, 0, 1), 1.2), False)  # 9
sketch11.addConstraint([
    Sketcher.Constraint("Vertical", 0),
    Sketcher.Constraint("Horizontal", 1),
    Sketcher.Constraint("Vertical", 2),
    Sketcher.Constraint("Horizontal", 3),
    Sketcher.Constraint("Vertical", 5),
    Sketcher.Constraint("Horizontal", 6),
    Sketcher.Constraint("Vertical", 7),
    Sketcher.Constraint("Horizontal", 8),
    Sketcher.Constraint("Equal", 4, 9),
    Sketcher.Constraint("Symmetric", 4, 3, 9, 3, -2),
    Sketcher.Constraint("Symmetric", 1, 2, 5, 2, -2),
    Sketcher.Constraint("Symmetric", 3, 2, 7, 2, -2),
    Sketcher.Constraint("Diameter", 4, Q("2.5 mm")),
    Sketcher.Constraint("DistanceX", 1, 2, 1, 1, Q("6.5 mm")),
    Sketcher.Constraint("DistanceY", 0, 2, 0, 1, Q("12.5 mm")),
    Sketcher.Constraint("DistanceY", 4, 3, -1, 1, Q("40 mm")),
    Sketcher.Constraint("DistanceY", 0, 2, -1, 1, Q("45 mm")),
    Sketcher.Constraint("DistanceX", 1, 2, -1, 1, Q("20 mm")),
    Sketcher.Constraint("DistanceX", 4, 3, 9, 3, Q("31 mm")),
])
sketch11.setExpression("Constraints[20]", "Params.sketch11_diameter")
sketch11.setExpression("Constraints[21]", "Params.sketch11_width")
sketch11.setExpression("Constraints[22]", "Params.sketch11_height")
pad5 = doc.addObject("PartDesign::Pad", "Pad004")
body.addObject(pad5)
pad5.Profile = sketch11
pad5.setExpression("Length", "Params.pad5_length")
pad5.Reversed = True

# Sketch on XY plane
sketch12 = doc.addObject("Sketcher::SketchObject", "Sketch011")
body.addObject(sketch12)
sketch12.AttachmentSupport = (doc.XY_Plane, [""])
sketch12.MapMode = "FlatFace"
add_polygon(sketch12, [(-14, -20), (0, -15), (14, -20)])  # lines 0-2
sketch12.addConstraint([
    Sketcher.Constraint("Horizontal", 2),
    Sketcher.Constraint("PointOnObject", 0, 2, -2),
    Sketcher.Constraint("Equal", 0, 1),
    Sketcher.Constraint("DistanceX", 2, 2, 2, 1, Q("27 mm")),
    Sketcher.Constraint("DistanceY", 0, 2, -1, 1, Q("15 mm")),
    Sketcher.Constraint("DistanceY", 1, 2, -1, 1, Q("20 mm")),
])
sketch12.setExpression("Constraints[6]", "Params.sketch12_width")
pocket7 = doc.addObject("PartDesign::Pocket", "Pocket006")
body.addObject(pocket7)
pocket7.Profile = sketch12
pocket7.Type = "ThroughAll"
pocket7.Reversed = True
doc.recompute()

fillet = doc.addObject("PartDesign::Fillet", "Fillet")
body.addObject(fillet)
fillet.Base = (pocket7, edges_at(pocket7, [(0, -15, 2)]))
fillet.setExpression("Radius", "Params.fillet_radius")
doc.recompute()

fillet2 = doc.addObject("PartDesign::Fillet", "Fillet001")
body.addObject(fillet2)
fillet2.Base = (fillet, edges_at(fillet, [(13.5, -20, 2), (-13.5, -20, 2)]))
fillet2.setExpression("Radius", "Params.fillet2_radius")

doc.recompute()
